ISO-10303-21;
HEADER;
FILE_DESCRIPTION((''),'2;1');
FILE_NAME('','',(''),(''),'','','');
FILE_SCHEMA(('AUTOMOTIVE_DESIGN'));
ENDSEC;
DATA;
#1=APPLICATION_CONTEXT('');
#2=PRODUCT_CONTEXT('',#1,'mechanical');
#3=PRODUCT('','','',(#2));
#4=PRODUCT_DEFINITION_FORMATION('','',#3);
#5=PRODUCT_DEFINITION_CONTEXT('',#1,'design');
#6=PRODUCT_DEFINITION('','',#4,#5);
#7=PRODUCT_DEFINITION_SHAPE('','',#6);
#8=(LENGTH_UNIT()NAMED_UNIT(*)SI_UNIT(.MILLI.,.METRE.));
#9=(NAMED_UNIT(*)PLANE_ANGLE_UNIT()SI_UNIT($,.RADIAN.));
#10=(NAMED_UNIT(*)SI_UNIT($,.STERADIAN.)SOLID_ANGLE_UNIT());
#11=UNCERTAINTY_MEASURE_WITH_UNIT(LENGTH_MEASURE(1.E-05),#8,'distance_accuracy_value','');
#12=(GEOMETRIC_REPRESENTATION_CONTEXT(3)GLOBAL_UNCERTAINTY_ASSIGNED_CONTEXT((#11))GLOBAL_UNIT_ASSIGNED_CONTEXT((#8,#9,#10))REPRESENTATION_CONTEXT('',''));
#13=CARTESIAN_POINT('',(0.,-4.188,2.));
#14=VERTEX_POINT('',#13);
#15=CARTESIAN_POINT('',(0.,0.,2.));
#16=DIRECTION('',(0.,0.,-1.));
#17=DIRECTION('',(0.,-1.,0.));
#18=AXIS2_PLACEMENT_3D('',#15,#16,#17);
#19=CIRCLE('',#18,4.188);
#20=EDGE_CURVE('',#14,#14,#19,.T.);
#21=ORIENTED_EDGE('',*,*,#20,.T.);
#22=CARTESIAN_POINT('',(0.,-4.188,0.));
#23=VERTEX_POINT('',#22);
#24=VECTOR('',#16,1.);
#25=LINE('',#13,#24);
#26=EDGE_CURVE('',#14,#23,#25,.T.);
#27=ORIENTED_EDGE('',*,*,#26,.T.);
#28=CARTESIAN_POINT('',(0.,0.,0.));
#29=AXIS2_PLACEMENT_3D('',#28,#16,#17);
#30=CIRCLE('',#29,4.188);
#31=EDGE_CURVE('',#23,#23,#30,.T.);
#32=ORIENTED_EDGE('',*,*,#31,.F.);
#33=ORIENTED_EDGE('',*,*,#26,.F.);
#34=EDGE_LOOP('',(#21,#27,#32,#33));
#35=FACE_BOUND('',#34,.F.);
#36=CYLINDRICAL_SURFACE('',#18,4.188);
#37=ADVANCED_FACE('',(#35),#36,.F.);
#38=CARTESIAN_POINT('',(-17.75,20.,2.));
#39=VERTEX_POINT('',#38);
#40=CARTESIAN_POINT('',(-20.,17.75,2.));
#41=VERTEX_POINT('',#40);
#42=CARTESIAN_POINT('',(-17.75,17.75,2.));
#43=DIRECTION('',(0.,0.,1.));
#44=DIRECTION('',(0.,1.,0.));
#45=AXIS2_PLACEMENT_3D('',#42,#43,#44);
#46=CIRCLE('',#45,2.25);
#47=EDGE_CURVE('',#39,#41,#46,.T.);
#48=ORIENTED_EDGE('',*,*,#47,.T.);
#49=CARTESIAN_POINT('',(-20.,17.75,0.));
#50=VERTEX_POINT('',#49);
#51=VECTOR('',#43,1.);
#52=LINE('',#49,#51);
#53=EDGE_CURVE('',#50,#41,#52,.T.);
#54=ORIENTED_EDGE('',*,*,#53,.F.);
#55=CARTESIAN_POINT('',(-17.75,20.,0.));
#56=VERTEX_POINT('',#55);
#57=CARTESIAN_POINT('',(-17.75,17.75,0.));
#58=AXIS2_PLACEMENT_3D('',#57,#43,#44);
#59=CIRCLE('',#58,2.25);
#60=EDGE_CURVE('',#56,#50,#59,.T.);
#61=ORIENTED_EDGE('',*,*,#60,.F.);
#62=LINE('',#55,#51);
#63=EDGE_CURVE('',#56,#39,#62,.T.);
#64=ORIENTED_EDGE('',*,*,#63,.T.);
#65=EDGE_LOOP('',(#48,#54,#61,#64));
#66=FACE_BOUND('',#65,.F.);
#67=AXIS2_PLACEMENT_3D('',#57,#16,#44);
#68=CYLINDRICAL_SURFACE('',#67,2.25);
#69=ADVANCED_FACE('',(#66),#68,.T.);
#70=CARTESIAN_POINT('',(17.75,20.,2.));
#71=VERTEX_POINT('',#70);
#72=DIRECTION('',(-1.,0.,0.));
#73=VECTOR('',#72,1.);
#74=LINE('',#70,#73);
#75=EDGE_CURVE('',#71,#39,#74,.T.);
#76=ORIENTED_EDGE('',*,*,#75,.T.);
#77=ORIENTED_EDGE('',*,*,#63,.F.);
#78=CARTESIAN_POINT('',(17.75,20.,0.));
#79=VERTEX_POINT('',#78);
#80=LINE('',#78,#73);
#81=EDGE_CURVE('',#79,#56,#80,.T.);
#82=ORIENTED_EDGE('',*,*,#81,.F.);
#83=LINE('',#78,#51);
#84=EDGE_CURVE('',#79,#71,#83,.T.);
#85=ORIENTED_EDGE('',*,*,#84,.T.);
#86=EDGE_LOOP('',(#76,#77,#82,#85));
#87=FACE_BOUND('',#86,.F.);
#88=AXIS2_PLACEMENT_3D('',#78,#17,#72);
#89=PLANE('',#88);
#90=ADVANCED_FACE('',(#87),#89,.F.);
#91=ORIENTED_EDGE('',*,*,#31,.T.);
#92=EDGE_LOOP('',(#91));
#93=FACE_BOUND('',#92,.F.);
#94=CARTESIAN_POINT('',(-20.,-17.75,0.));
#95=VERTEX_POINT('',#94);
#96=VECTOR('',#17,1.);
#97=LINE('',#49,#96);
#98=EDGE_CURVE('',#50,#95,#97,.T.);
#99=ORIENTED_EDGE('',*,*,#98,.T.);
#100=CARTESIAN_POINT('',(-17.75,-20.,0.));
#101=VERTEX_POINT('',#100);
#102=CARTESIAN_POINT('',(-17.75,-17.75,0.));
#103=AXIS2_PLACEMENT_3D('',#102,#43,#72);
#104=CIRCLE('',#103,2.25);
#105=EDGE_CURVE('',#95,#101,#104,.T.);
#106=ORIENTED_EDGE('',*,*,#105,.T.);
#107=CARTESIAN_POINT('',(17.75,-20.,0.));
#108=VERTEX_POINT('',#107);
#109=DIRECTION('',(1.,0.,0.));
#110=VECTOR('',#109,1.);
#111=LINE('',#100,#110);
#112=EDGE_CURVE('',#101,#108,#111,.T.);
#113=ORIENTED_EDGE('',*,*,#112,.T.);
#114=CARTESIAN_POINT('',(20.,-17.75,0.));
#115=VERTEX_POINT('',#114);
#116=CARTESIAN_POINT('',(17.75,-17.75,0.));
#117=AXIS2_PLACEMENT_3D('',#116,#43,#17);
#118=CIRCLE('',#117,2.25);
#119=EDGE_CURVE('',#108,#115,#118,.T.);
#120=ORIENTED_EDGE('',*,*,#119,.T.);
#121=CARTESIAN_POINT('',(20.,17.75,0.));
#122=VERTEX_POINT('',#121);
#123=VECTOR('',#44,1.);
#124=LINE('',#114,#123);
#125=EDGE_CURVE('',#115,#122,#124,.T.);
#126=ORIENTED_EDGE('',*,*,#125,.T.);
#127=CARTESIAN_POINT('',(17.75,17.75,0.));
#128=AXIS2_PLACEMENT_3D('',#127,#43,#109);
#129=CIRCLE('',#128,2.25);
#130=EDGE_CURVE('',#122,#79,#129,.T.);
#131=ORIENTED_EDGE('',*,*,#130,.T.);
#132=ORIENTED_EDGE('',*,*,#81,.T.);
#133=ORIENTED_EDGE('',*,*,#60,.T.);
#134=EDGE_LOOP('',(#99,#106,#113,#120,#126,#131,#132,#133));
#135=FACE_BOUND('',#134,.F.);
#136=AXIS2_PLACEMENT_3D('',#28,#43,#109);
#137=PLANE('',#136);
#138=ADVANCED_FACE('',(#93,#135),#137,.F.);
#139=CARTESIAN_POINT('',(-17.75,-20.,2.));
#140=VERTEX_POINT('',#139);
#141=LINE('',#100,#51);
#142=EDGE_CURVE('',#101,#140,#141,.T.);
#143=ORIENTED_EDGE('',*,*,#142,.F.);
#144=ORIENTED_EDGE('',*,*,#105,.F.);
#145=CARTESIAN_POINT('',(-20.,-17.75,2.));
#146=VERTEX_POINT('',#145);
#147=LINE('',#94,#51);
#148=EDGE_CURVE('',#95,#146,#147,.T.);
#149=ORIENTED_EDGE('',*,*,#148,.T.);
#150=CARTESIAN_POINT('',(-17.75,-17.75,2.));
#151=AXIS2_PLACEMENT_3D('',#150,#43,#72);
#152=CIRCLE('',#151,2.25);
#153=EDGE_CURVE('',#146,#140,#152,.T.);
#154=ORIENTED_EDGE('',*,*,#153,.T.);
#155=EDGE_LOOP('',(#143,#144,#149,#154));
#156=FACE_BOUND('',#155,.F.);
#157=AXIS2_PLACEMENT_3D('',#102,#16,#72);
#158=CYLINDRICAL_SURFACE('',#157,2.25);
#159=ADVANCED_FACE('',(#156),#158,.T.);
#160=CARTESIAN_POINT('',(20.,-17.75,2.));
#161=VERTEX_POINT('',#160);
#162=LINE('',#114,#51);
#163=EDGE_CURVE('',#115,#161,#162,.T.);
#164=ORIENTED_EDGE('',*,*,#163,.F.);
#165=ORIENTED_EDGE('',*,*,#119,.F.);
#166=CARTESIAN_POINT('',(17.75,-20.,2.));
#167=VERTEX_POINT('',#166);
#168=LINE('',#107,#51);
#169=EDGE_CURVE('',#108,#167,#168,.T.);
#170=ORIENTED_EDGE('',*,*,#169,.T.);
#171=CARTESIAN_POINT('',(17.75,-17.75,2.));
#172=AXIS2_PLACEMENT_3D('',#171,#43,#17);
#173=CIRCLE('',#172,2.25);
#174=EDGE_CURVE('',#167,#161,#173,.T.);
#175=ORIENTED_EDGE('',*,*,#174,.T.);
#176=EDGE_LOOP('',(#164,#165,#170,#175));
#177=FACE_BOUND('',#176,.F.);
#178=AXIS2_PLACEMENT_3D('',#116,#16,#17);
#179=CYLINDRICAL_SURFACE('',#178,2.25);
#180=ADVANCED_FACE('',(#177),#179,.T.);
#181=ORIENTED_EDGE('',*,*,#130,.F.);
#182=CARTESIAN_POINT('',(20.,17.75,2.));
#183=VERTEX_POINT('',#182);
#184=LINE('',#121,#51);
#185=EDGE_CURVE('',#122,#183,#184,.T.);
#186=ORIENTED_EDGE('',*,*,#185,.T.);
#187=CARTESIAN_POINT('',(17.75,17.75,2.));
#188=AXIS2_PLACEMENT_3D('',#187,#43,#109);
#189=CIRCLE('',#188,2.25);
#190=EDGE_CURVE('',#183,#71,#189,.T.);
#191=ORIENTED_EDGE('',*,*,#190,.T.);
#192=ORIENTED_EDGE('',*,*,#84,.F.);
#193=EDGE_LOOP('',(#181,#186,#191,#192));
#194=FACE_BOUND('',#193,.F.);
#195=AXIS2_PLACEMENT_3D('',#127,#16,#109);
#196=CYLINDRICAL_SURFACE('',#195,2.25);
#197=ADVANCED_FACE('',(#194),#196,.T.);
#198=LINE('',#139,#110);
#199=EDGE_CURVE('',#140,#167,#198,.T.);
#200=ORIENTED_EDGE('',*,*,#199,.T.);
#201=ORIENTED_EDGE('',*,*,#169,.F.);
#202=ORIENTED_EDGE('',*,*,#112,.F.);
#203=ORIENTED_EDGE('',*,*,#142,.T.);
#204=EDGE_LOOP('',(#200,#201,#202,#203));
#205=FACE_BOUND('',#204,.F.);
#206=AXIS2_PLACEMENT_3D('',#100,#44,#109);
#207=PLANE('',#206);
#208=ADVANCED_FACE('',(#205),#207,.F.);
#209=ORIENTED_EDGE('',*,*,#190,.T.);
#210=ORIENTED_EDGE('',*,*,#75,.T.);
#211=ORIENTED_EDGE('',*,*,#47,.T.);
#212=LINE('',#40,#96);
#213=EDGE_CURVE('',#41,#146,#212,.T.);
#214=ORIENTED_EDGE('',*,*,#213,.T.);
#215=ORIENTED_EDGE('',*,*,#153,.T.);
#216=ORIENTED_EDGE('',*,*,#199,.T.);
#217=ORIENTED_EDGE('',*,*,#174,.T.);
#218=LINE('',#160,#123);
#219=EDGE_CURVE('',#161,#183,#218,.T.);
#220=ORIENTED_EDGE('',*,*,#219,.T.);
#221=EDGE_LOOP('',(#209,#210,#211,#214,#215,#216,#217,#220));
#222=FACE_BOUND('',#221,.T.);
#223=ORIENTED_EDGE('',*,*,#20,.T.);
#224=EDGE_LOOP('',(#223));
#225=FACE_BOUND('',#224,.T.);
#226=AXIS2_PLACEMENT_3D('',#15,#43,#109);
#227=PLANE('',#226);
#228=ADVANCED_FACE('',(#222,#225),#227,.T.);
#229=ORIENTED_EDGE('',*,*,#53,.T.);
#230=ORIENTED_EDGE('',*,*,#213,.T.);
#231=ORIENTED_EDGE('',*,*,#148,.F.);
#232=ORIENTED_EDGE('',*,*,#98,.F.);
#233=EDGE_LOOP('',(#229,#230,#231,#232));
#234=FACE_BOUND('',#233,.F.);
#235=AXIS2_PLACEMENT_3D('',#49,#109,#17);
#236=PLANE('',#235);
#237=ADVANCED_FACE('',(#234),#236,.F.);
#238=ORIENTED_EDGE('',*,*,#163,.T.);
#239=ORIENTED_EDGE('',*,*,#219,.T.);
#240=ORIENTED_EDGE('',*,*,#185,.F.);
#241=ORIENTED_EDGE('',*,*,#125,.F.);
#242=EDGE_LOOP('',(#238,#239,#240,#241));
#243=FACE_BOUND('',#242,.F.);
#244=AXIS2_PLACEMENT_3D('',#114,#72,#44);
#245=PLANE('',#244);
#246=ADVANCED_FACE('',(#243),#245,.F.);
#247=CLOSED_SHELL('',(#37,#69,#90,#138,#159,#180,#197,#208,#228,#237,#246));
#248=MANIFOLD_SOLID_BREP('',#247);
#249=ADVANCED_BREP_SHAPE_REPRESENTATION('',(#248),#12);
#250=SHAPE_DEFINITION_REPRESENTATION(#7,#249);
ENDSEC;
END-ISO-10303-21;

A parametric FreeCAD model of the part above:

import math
import FreeCAD as App
import Part
import Sketcher

V = App.Vector

doc = App.newDocument("Part")
body = doc.addObject("PartDesign::Body", "Body")

sketch1 = body.newObject("Sketcher::SketchObject", "Sketch")
sketch1.AttachmentSupport = (doc.getObject("XY_Plane"), [""])
sketch1.MapMode = "FlatFace"
sketch1.addGeometry(Part.ArcOfCircle(Part.Circle(V(17.75, 17.75, 0), V(0, 0, 1), 2.25), math.radians(0), math.radians(90)), False)
sketch1.addGeometry(Part.LineSegment(V(17.75, 20, 0), V(-17.75, 20, 0)), False)
sketch1.addGeometry(Part.ArcOfCircle(Part.Circle(V(-17.75, 17.75, 0), V(0, 0, 1), 2.25), math.radians(90), math.radians(180)), False)
sketch1.addGeometry(Part.LineSegment(V(-20, 17.75, 0), V(-20, -17.75, 0)), False)
sketch1.addGeometry(Part.ArcOfCircle(Part.Circle(V(-17.75, -17.75, 0), V(0, 0, 1), 2.25), math.radians(180), math.radians(270)), False)
sketch1.addGeometry(Part.LineSegment(V(-17.75, -20, 0), V(17.75, -20, 0)), False)
sketch1.addGeometry(Part.ArcOfCircle(Part.Circle(V(17.75, -17.75, 0), V(0, 0, 1), 2.25), math.radians(-90), math.radians(0)), False)
sketch1.addGeometry(Part.LineSegment(V(20, -17.75, 0), V(20, 17.75, 0)), False)
sketch1.addConstraint(Sketcher.Constraint("Tangent", 0, 2, 1, 1))
sketch1.addConstraint(Sketcher.Constraint("Tangent", 1, 2, 2, 1))
sketch1.addConstraint(Sketcher.Constraint("Tangent", 2, 2, 3, 1))
sketch1.addConstraint(Sketcher.Constraint("Tangent", 3, 2, 4, 1))
sketch1.addConstraint(Sketcher.Constraint("Tangent", 4, 2, 5, 1))
sketch1.addConstraint(Sketcher.Constraint("Tangent", 5, 2, 6, 1))
sketch1.addConstraint(Sketcher.Constraint("Tangent", 6, 2, 7, 1))
sketch1.addConstraint(Sketcher.Constraint("Tangent", 7, 2, 0, 1))
sketch1.addConstraint(Sketcher.Constraint("Horizontal", 1))
sketch1.addConstraint(Sketcher.Constraint("Vertical", 3))
sketch1.addConstraint(Sketcher.Constraint("Horizontal", 5))
sketch1.addConstraint(Sketcher.Constraint("Vertical", 7))
sketch1.addConstraint(Sketcher.Constraint("Equal", 0, 2))
sketch1.addConstraint(Sketcher.Constraint("Equal", 2, 4))
sketch1.addConstraint(Sketcher.Constraint("Equal", 4, 6))
sketch1.addConstraint(Sketcher.Constraint("Symmetric", 0, 3, 4, 3, -1, 1))
sketch1.addConstraint(Sketcher.Constraint("Equal", 5, 3))
sketch1.addConstraint(Sketcher.Constraint("Radius", 0, 2.25))
sketch1.addConstraint(Sketcher.Constraint("DistanceX", 1, 2, 1, 1, 35.5))
pad1 = body.newObject("PartDesign::Pad", "Pad")
pad1.Profile = sketch1
pad1.Length = 2

sketch2 = body.newObject("Sketcher::SketchObject", "Sketch001")
sketch2.AttachmentSupport = (doc.getObject("XY_Plane"), [""])
sketch2.MapMode = "FlatFace"
sketch2.AttachmentOffset = App.Placement(V(0, 0, 2), App.Rotation())
sketch2.addGeometry(Part.Circle(V(0, 0, 0), V(0, 0, 1), 4.188), False)
sketch2.addConstraint(Sketcher.Constraint("Coincident", 0, 3, -1, 1))
sketch2.addConstraint(Sketcher.Constraint("Diameter", 0, 8.376))
doc.recompute()
hole = body.newObject("PartDesign::Hole", "Hole")
hole.Profile = sketch2
hole.ThreadType = "None"
hole.Diameter = 8.376
hole.DepthType = "Dimension"
hole.Depth = 2
hole.DrillPoint = "Angled"
hole.DrillPointAngle = 118

doc.recompute()
